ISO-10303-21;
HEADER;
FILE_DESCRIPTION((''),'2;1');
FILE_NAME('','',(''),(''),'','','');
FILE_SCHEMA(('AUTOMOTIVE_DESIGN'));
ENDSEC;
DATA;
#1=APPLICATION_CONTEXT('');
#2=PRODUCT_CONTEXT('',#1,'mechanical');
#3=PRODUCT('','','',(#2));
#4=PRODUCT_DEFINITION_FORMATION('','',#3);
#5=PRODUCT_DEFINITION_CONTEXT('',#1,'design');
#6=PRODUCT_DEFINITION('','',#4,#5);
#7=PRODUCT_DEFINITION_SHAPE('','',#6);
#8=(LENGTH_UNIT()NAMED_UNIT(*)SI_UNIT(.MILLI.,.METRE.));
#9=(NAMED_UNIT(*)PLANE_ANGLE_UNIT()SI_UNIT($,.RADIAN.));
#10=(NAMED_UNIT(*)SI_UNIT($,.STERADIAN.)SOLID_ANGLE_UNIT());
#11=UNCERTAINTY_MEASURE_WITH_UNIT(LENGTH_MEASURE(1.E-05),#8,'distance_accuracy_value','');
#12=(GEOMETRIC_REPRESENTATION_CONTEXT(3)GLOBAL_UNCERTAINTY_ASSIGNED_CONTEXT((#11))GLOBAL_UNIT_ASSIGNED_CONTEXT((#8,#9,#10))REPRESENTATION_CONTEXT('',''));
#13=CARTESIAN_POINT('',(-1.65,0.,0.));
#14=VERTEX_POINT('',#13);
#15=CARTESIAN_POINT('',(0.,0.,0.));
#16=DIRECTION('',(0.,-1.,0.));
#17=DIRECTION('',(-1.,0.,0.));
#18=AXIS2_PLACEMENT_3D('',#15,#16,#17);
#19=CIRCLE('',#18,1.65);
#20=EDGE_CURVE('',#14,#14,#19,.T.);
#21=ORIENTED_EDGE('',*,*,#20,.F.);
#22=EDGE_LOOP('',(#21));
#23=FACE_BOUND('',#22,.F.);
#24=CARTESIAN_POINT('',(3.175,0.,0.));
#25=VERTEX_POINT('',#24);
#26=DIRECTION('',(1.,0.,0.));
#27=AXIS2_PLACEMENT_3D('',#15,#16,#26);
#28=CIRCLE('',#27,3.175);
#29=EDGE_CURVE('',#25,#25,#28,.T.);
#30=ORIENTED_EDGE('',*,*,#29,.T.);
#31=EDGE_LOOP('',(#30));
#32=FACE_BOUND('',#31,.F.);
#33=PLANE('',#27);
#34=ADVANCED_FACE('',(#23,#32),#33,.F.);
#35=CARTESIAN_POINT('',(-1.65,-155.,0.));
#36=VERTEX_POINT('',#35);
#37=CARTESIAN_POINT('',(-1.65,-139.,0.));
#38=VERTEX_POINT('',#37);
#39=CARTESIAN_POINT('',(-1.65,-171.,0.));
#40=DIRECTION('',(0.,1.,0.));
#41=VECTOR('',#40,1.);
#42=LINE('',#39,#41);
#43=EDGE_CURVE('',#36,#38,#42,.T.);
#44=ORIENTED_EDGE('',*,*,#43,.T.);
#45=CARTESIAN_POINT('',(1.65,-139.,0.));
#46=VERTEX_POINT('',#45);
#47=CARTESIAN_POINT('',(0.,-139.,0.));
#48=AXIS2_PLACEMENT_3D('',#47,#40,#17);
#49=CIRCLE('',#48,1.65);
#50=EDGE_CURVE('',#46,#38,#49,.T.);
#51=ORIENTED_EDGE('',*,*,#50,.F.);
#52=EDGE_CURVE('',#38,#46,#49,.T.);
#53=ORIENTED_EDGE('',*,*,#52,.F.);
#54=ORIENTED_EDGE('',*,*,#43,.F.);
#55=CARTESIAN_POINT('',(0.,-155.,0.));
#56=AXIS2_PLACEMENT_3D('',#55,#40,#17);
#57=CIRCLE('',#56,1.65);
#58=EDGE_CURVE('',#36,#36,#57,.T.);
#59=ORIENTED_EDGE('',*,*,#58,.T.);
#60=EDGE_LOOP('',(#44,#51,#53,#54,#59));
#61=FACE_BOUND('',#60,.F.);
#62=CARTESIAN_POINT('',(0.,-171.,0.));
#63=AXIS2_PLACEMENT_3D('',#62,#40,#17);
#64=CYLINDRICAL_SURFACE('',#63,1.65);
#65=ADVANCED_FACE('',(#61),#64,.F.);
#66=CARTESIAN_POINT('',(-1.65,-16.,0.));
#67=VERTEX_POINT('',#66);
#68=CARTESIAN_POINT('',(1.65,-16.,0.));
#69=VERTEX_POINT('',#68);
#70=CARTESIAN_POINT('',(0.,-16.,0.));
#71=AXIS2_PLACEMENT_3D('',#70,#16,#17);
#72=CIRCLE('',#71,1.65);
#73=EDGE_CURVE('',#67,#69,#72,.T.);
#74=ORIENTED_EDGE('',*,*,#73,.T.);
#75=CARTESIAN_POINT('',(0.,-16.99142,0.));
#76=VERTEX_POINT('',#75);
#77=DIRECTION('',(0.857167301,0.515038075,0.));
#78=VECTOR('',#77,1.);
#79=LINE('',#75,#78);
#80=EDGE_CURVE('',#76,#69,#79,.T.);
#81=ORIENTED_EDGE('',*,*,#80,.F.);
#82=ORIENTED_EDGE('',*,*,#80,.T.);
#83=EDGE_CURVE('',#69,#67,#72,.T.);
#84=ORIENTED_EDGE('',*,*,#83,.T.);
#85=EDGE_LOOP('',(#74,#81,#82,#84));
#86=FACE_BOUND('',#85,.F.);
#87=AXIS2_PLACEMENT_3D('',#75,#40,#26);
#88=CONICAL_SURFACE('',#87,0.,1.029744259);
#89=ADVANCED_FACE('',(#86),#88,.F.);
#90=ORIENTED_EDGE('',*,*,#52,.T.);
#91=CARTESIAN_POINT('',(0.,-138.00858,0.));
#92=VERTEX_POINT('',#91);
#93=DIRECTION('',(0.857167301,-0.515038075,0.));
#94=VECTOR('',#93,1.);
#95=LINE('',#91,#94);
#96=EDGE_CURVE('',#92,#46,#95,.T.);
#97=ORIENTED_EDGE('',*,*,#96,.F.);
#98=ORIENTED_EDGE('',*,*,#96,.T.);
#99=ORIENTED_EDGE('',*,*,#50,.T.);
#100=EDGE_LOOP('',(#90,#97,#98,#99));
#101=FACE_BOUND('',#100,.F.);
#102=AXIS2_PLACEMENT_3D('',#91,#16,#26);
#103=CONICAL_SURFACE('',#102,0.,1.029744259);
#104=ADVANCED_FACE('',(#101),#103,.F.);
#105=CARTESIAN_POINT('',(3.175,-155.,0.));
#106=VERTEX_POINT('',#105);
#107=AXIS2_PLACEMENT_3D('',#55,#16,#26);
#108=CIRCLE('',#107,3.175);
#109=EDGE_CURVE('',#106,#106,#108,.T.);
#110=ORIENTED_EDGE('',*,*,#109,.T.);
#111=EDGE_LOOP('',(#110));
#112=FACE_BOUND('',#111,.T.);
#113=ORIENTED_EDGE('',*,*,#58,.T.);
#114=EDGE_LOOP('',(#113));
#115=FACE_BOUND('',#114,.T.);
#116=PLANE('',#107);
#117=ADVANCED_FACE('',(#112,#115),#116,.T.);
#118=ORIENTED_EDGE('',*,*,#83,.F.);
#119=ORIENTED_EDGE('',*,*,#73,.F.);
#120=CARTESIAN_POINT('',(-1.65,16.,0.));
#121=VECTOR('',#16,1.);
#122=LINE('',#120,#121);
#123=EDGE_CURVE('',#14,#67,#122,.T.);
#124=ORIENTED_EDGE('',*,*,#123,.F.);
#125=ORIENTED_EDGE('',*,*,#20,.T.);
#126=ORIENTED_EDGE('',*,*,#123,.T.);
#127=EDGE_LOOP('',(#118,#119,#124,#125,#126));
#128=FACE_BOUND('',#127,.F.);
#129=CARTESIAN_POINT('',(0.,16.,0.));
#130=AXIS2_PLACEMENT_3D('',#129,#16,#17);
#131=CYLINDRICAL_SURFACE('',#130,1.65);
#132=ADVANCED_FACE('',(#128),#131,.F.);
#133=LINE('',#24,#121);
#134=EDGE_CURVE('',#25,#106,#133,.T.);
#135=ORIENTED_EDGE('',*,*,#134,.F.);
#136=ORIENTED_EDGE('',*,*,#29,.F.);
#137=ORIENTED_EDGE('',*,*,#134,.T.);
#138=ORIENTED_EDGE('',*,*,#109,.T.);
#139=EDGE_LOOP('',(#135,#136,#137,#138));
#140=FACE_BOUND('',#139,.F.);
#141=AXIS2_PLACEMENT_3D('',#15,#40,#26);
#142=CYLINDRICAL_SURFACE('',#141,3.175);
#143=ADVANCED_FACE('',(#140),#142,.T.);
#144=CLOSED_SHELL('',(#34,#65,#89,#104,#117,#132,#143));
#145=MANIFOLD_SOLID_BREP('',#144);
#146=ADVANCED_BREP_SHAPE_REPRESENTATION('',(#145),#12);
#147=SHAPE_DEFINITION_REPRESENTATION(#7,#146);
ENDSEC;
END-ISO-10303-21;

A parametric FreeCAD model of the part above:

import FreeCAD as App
import Part
import Sketcher

V = App.Vector
Q = App.Units.Quantity

doc = App.newDocument("Part")
body = doc.addObject("PartDesign::Body", "Body")

# Sketch on XZ plane
sketch1 = body.newObject("Sketcher::SketchObject", "Sketch")
sketch1.AttachmentSupport = (doc.getObject("XZ_Plane"), [""])
sketch1.MapMode = "FlatFace"
sketch1.addGeometry(Part.Circle(V(0, 0, 0), V(0, 0, 1), 3.175), False)
sketch1.addConstraint(Sketcher.Constraint("Coincident", 0, 3, -1, 1))
sketch1.addConstraint(Sketcher.Constraint("Diameter", 0, Q("6.35 mm")))
pad1 = body.newObject("PartDesign::Pad", "Pad")
pad1.Profile = sketch1
pad1.Length = 155

# Sketch on XZ plane
sketch2 = body.newObject("Sketcher::SketchObject", "Sketch001")
sketch2.AttachmentSupport = (doc.getObject("XZ_Plane"), [""])
sketch2.MapMode = "FlatFace"
sketch2.addGeometry(Part.Circle(V(0, 0, 0), V(0, 0, 1), 1.65), False)
sketch2.addConstraint(Sketcher.Constraint("Coincident", 0, 3, -1, 1))
sketch2.addConstraint(Sketcher.Constraint("Diameter", 0, Q("3.3 mm")))
doc.recompute()
hole = body.newObject("PartDesign::Hole", "Hole")
hole.Profile = sketch2
hole.ThreadType = "None"
hole.Diameter = 3.3
hole.DepthType = "Dimension"
hole.Depth = 16
hole.DrillPoint = "Angled"
hole.DrillPointAngle = 118
hole.Reversed = True

# Sketch on XZ plane
sketch3 = body.newObject("Sketcher::SketchObject", "Sketch002")
sketch3.AttachmentSupport = (doc.getObject("XZ_Plane"), [""])
sketch3.MapMode = "FlatFace"
sketch3.AttachmentOffset = App.Placement(V(0, 0, 155), App.Rotation())
sketch3.addGeometry(Part.Circle(V(0, 0, 0), V(0, 0, 1), 1.65), False)
sketch3.addConstraint(Sketcher.Constraint("Coincident", 0, 3, -1, 1))
sketch3.addConstraint(Sketcher.Constraint("Diameter", 0, Q("3.3 mm")))
doc.recompute()
hole2 = body.newObject("PartDesign::Hole", "Hole001")
hole2.Profile = sketch3
hole2.ThreadType = "None"
hole2.Diameter = 3.3
hole2.DepthType = "Dimension"
hole2.Depth = 16
hole2.DrillPoint = "Angled"
hole2.DrillPointAngle = 118

doc.recompute()
